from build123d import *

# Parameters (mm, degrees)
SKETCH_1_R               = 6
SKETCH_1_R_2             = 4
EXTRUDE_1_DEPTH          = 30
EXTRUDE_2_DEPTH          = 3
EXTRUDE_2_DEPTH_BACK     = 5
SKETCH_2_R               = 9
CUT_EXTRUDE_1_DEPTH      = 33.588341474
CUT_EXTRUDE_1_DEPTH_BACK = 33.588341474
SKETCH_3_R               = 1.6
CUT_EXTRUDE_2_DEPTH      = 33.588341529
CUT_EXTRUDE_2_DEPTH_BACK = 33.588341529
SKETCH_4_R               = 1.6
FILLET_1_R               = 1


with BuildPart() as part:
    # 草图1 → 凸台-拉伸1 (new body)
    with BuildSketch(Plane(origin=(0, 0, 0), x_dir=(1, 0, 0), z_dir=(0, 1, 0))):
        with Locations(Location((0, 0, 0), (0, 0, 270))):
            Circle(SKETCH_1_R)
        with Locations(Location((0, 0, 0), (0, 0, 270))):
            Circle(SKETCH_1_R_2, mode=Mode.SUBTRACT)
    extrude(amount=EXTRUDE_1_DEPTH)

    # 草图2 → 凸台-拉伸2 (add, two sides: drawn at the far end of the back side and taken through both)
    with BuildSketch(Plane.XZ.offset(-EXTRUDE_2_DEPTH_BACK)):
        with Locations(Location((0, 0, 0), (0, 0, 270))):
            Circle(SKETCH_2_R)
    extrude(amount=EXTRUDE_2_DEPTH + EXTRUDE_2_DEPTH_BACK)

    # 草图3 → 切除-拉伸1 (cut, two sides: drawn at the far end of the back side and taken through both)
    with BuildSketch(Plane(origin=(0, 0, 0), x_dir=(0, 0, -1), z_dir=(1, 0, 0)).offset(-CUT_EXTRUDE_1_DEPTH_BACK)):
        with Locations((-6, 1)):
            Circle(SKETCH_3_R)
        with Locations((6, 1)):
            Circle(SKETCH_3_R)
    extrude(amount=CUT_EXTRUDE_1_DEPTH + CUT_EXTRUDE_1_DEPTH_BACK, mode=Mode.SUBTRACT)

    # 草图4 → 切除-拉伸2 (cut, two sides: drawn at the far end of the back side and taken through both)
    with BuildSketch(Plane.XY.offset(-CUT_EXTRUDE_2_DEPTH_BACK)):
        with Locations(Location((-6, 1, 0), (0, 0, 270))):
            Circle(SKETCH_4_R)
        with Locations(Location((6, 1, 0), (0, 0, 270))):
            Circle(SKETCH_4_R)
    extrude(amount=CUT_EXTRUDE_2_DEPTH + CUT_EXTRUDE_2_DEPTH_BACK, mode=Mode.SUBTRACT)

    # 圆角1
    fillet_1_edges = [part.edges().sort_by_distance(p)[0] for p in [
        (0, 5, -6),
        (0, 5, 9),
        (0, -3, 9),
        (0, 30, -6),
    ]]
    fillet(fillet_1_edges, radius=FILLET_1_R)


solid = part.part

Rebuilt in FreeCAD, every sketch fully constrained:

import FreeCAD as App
import Part
import Sketcher
from FreeCAD import Vector
Q = App.Units.Quantity


def edges_at(feature, points):
    """Names of the edges that pass closest to the given points."""
    edges = feature.Shape.Edges
    near = lambda p: min(range(len(edges)), key=lambda i: edges[i].distToShape(Part.Vertex(*p))[0])
    return sorted({f"Edge{near(p) + 1}" for p in points})

doc = App.newDocument("Part")
body = doc.addObject("PartDesign::Body", "Body")

sketch1 = body.newObject("Sketcher::SketchObject", "Sketch")
sketch1.AttachmentSupport = (doc.getObject("XZ_Plane"), [""])
sketch1.MapMode = "FlatFace"
sketch1.addGeometry(Part.Circle(Vector(0, 0, 0), Vector(0, 0, 1), 6), False)
sketch1.addGeometry(Part.Circle(Vector(0, 0, 0), Vector(0, 0, 1), 4), False)
sketch1.addConstraint(Sketcher.Constraint("Coincident", 0, 3, -1, 1))
sketch1.addConstraint(Sketcher.Constraint("Coincident", 1, 3, -1, 1))
sketch1.addConstraint(Sketcher.Constraint("Diameter", 0, Q("12 mm")))
sketch1.addConstraint(Sketcher.Constraint("Diameter", 1, Q("8 mm")))
pad1 = body.newObject("PartDesign::Pad", "Pad")
pad1.Profile = sketch1
pad1.Length = 30
pad1.Reversed = True

sketch2 = body.newObject("Sketcher::SketchObject", "Sketch001")
sketch2.AttachmentSupport = (doc.getObject("XZ_Plane"), [""])
sketch2.MapMode = "FlatFace"
sketch2.addGeometry(Part.Circle(Vector(0, 0, 0), Vector(0, 0, 1), 9), False)
sketch2.addConstraint(Sketcher.Constraint("Coincident", 0, 3, -1, 1))
sketch2.addConstraint(Sketcher.Constraint("Diameter", 0, Q("18 mm")))
pad2 = body.newObject("PartDesign::Pad", "Pad001")
pad2.Profile = sketch2
pad2.Type = "TwoLengths"
pad2.Length = 3
pad2.Length2 = 5

sketch3 = body.newObject("Sketcher::SketchObject", "Sketch002")
sketch3.AttachmentSupport = (doc.getObject("YZ_Plane"), [""])
sketch3.MapMode = "FlatFace"
sketch3.addGeometry(Part.Circle(Vector(1, 6, 0), Vector(0, 0, 1), 1.6), False)
sketch3.addGeometry(Part.Circle(Vector(1, -6, 0), Vector(0, 0, 1), 1.6), False)
sketch3.addConstraint(Sketcher.Constraint("Equal", 0, 1))
sketch3.addConstraint(Sketcher.Constraint("Symmetric", 0, 3, 1, 3, -1))
sketch3.addConstraint(Sketcher.Constraint("Diameter", 0, Q("3.2 mm")))
sketch3.addConstraint(Sketcher.Constraint("DistanceX", -1, 1, 0, 3, Q("1 mm")))
sketch3.addConstraint(Sketcher.Constraint("DistanceY", -1, 1, 0, 3, Q("6 mm")))
pocket1 = body.newObject("PartDesign::Pocket", "Pocket")
pocket1.Profile = sketch3
pocket1.Type = "ThroughAll"
pocket1.Midplane = True

sketch4 = body.newObject("Sketcher::SketchObject", "Sketch003")
sketch4.AttachmentSupport = (doc.getObject("XY_Plane"), [""])
sketch4.MapMode = "FlatFace"
sketch4.addGeometry(Part.Circle(Vector(-6, 1, 0), Vector(0, 0, 1), 1.6), False)
sketch4.addGeometry(Part.Circle(Vector(6, 1, 0), Vector(0, 0, 1), 1.6), False)
sketch4.addConstraint(Sketcher.Constraint("Equal", 0, 1))
sketch4.addConstraint(Sketcher.Constraint("Symmetric", 0, 3, 1, 3, -2))
sketch4.addConstraint(Sketcher.Constraint("Diameter", 0, Q("3.2 mm")))
sketch4.addConstraint(Sketcher.Constraint("DistanceX", 0, 3, -1, 1, Q("6 mm")))
sketch4.addConstraint(Sketcher.Constraint("DistanceY", -1, 1, 0, 3, Q("1 mm")))
pocket2 = body.newObject("PartDesign::Pocket", "Pocket001")
pocket2.Profile = sketch4
pocket2.Type = "ThroughAll"
pocket2.Midplane = True
doc.recompute()

fillet = body.newObject("PartDesign::Fillet", "Fillet")
fillet.Base = (pocket2, edges_at(pocket2, [
    (0, 5, -6),
    (0, 5, 9),
    (0, -3, 9),
    (0, 30, -6),
]))
fillet.Radius = 1

doc.recompute()
